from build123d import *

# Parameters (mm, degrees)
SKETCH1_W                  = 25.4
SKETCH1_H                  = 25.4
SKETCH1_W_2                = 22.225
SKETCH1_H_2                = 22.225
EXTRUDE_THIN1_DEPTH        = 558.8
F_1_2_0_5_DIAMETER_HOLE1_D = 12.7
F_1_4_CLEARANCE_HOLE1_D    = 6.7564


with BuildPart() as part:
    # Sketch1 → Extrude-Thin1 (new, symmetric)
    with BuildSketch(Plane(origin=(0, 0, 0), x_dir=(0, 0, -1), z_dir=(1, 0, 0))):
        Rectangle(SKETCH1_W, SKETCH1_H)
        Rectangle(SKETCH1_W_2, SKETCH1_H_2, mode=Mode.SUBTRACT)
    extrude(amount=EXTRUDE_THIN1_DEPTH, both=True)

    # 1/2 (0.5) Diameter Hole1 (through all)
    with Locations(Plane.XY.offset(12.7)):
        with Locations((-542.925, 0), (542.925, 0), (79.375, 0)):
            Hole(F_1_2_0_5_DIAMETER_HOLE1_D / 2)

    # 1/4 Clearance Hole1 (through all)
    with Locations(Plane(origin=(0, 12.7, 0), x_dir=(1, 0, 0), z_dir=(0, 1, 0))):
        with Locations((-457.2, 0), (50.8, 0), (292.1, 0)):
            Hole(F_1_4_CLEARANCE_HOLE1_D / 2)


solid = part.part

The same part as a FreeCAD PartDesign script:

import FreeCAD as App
import Part
import Sketcher

V = App.Vector
Q = App.Units.Quantity


def add_polygon(sketch, points):
    """Adds a closed chain of lines whose ends are joined by coincident constraints."""
    first, n = sketch.GeometryCount, len(points)
    for a, b in zip(points, points[1:] + points[:1]):
        sketch.addGeometry(Part.LineSegment(App.Vector(*a, 0), App.Vector(*b, 0)), False)
    for i in range(n):
        sketch.addConstraint(Sketcher.Constraint("Coincident", first + i, 2, first + (i + 1) % n, 1))

doc = App.newDocument("Part")
body = doc.addObject("PartDesign::Body", "Body")

# Sketch on YZ plane
sketch1 = body.newObject("Sketcher::SketchObject", "Sketch")
sketch1.AttachmentSupport = (doc.getObject("YZ_Plane"), [""])
sketch1.MapMode = "FlatFace"
add_polygon(sketch1, [(12.7, 12.7), (-12.7, 12.7), (-12.7, -12.7), (12.7, -12.7)])  # lines 0-3
add_polygon(sketch1, [(-11.1125, -11.1125), (-11.1125, 11.1125), (11.1125, 11.1125), (11.1125, -11.1125)])  # lines 4-7
sketch1.addConstraint(Sketcher.Constraint("Horizontal", 0))
sketch1.addConstraint(Sketcher.Constraint("Vertical", 1))
sketch1.addConstraint(Sketcher.Constraint("Horizontal", 2))
sketch1.addConstraint(Sketcher.Constraint("Vertical", 3))
sketch1.addConstraint(Sketcher.Constraint("Vertical", 4))
sketch1.addConstraint(Sketcher.Constraint("Horizontal", 5))
sketch1.addConstraint(Sketcher.Constraint("Vertical", 6))
sketch1.addConstraint(Sketcher.Constraint("Horizontal", 7))
sketch1.addConstraint(Sketcher.Constraint("Symmetric", 0, 2, 2, 2, -1, 1))
sketch1.addConstraint(Sketcher.Constraint("Symmetric", 4, 2, 6, 2, -1, 1))
sketch1.addConstraint(Sketcher.Constraint("Equal", 2, 1))
sketch1.addConstraint(Sketcher.Constraint("Equal", 7, 4))
sketch1.addConstraint(Sketcher.Constraint("DistanceX", 0, 2, 0, 1, Q("1 in")))
sketch1.addConstraint(Sketcher.Constraint("DistanceX", 5, 1, 5, 2, Q("0.875 in")))
pad1 = body.newObject("PartDesign::Pad", "Pad")
pad1.Profile = sketch1
pad1.Length = Q("44 in")
pad1.Midplane = True

# Sketch on XY plane
sketch2 = body.newObject("Sketcher::SketchObject", "Sketch001")
sketch2.AttachmentSupport = (doc.getObject("XY_Plane"), [""])
sketch2.MapMode = "FlatFace"
sketch2.AttachmentOffset = App.Placement(V(0, 0, 0.5 * 25.4), App.Rotation())
sketch2.addGeometry(Part.Circle(V(-542.925, 0, 0), V(0, 0, 1), 6.35), False)
sketch2.addGeometry(Part.Circle(V(542.925, 0, 0), V(0, 0, 1), 6.35), False)
sketch2.addGeometry(Part.Circle(V(79.375, 0, 0), V(0, 0, 1), 6.35), False)
sketch2.addConstraint(Sketcher.Constraint("Equal", 0, 1))
sketch2.addConstraint(Sketcher.Constraint("Equal", 1, 2))
sketch2.addConstraint(Sketcher.Constraint("Symmetric", 0, 3, 1, 3, -1, 1))
sketch2.addConstraint(Sketcher.Constraint("PointOnObject", 0, 3, -1))
sketch2.addConstraint(Sketcher.Constraint("PointOnObject", 2, 3, -1))
sketch2.addConstraint(Sketcher.Constraint("Diameter", 0, Q("0.5 in")))
sketch2.addConstraint(Sketcher.Constraint("DistanceX", 0, 3, 2, 3, Q("24.5 in")))
sketch2.addConstraint(Sketcher.Constraint("DistanceX", 0, 3, 1, 3, Q("42.75 in")))
doc.recompute()
hole = body.newObject("PartDesign::Hole", "Hole")
hole.Profile = sketch2
hole.ThreadType = "None"
hole.Diameter = Q("0.5 in")
hole.DepthType = "ThroughAll"

# Sketch on XZ plane
sketch3 = body.newObject("Sketcher::SketchObject", "Sketch002")
sketch3.AttachmentSupport = (doc.getObject("XZ_Plane"), [""])
sketch3.MapMode = "FlatFace"
sketch3.AttachmentOffset = App.Placement(V(0, 0, -0.5 * 25.4), App.Rotation())
sketch3.addGeometry(Part.Circle(V(-457.2, 0, 0), V(0, 0, 1), 3.3782), False)
sketch3.addGeometry(Part.Circle(V(50.8, 0, 0), V(0, 0, 1), 3.3782), False)
sketch3.addGeometry(Part.Circle(V(292.1, 0, 0), V(0, 0, 1), 3.3782), False)
sketch3.addConstraint(Sketcher.Constraint("Equal", 0, 1))
sketch3.addConstraint(Sketcher.Constraint("Equal", 1, 2))
sketch3.addConstraint(Sketcher.Constraint("PointOnObject", 0, 3, -1))
sketch3.addConstraint(Sketcher.Constraint("PointOnObject", 1, 3, -1))
sketch3.addConstraint(Sketcher.Constraint("PointOnObject", 2, 3, -1))
sketch3.addConstraint(Sketcher.Constraint("Diameter", 0, Q("0.266 in")))
sketch3.addConstraint(Sketcher.Constraint("DistanceX", 0, 3, -1, 1, Q("18 in")))
sketch3.addConstraint(Sketcher.Constraint("DistanceX", -1, 1, 1, 3, Q("2 in")))
sketch3.addConstraint(Sketcher.Constraint("DistanceX", -1, 1, 2, 3, Q("11.5 in")))
doc.recompute()
hole2 = body.newObject("PartDesign::Hole", "Hole001")
hole2.Profile = sketch3
hole2.ThreadType = "None"
hole2.Diameter = Q("0.266 in")
hole2.DepthType = "ThroughAll"
hole2.Reversed = True

doc.recompute()
